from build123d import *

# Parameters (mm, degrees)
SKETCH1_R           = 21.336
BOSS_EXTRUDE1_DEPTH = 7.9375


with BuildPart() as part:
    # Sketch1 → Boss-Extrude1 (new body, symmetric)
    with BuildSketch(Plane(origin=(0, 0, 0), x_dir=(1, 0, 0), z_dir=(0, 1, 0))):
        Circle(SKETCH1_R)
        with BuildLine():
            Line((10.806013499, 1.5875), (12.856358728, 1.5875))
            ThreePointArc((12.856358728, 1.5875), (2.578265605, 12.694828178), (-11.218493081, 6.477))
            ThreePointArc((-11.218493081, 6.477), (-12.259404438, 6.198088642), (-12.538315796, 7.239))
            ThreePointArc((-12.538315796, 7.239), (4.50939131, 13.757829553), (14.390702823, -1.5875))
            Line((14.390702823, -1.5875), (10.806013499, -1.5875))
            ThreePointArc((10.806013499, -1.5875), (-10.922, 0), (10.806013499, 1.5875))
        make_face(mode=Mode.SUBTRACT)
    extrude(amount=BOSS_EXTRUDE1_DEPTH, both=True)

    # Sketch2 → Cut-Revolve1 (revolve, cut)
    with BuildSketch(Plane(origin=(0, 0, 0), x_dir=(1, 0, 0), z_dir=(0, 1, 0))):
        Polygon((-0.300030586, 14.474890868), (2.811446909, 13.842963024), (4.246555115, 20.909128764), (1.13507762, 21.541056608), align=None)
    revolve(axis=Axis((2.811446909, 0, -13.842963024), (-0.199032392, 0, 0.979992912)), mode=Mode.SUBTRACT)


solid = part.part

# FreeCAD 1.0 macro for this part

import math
import FreeCAD as App
import Part
import Sketcher
Q = App.Units.Quantity

doc = App.newDocument("Part")
body = doc.addObject("PartDesign::Body", "Body")

# Sketch on XZ plane
sketch1 = body.newObject("Sketcher::SketchObject", "Sketch")
sketch1.AttachmentSupport = (doc.getObject("XZ_Plane"), [""])
sketch1.MapMode = "FlatFace"
sketch1.addGeometry(Part.Circle(App.Vector(0, 0, 0), App.Vector(0, 0, 1), 21.336), False)
sketch1.addGeometry(Part.ArcOfCircle(Part.Circle(App.Vector(0, 0, 0), App.Vector(0, 0, 1), 10.922), math.radians(8.35748), math.radians(351.64252)), False)
sketch1.addGeometry(Part.LineSegment(App.Vector(10.806013, -1.5875, 0), App.Vector(12.856359, -1.5875, 0)), False)
sketch1.addGeometry(Part.ArcOfCircle(Part.Circle(App.Vector(0, 0, 0), App.Vector(0, 0, 1), 12.954), math.radians(-150), math.radians(-7.039237)), False)
sketch1.addGeometry(Part.ArcOfCircle(Part.Circle(App.Vector(-11.878404, -6.858, 0), App.Vector(0, 0, 1), 0.762), math.radians(30), math.radians(210)), False)
sketch1.addGeometry(Part.ArcOfCircle(Part.Circle(App.Vector(0, 0, 0), App.Vector(0, 0, 1), 14.478), math.radians(-150), math.radians(6.295089)), False)
sketch1.addGeometry(Part.LineSegment(App.Vector(14.390703, 1.5875, 0), App.Vector(10.806013, 1.5875, 0)), False)
sketch1.addConstraint(Sketcher.Constraint("Coincident", 1, 2, 2, 1))
sketch1.addConstraint(Sketcher.Constraint("Coincident", 2, 2, 3, 2))
sketch1.addConstraint(Sketcher.Constraint("Tangent", 3, 1, 4, 1))
sketch1.addConstraint(Sketcher.Constraint("Tangent", 4, 2, 5, 1))
sketch1.addConstraint(Sketcher.Constraint("Coincident", 5, 2, 6, 1))
sketch1.addConstraint(Sketcher.Constraint("Coincident", 6, 2, 1, 1))
sketch1.addConstraint(Sketcher.Constraint("Horizontal", 2))
sketch1.addConstraint(Sketcher.Constraint("Horizontal", 6))
sketch1.addConstraint(Sketcher.Constraint("Coincident", 0, 3, -1, 1))
sketch1.addConstraint(Sketcher.Constraint("Coincident", 1, 3, -1, 1))
sketch1.addConstraint(Sketcher.Constraint("Coincident", 3, 3, -1, 1))
sketch1.addConstraint(Sketcher.Constraint("Coincident", 5, 3, -1, 1))
sketch1.addConstraint(Sketcher.Constraint("Vertical", 1, 2, 6, 2))
sketch1.addConstraint(Sketcher.Constraint("Diameter", 0, Q("1.68 in")))
sketch1.addConstraint(Sketcher.Constraint("Radius", 1, Q("0.43 in")))
sketch1.addConstraint(Sketcher.Constraint("Radius", 3, Q("0.51 in")))
sketch1.addConstraint(Sketcher.Constraint("Radius", 4, Q("0.03 in")))
sketch1.addConstraint(Sketcher.Constraint("DistanceY", 4, 3, -1, 1, Q("0.27 in")))
sketch1.addConstraint(Sketcher.Constraint("DistanceY", 1, 2, -1, 1, Q("0.0625 in")))
pad1 = body.newObject("PartDesign::Pad", "Pad")
pad1.Profile = sketch1
pad1.Length = Q("0.625 in")
pad1.Midplane = True

# Sketch on XZ plane
sketch2 = body.newObject("Sketcher::SketchObject", "Sketch001")
sketch2.AttachmentSupport = (doc.getObject("XZ_Plane"), [""])
sketch2.MapMode = "FlatFace"
sketch2.addGeometry(Part.LineSegment(App.Vector(-0.300031, -14.474891, 0), App.Vector(2.811447, -13.842963, 0)), False)
sketch2.addGeometry(Part.LineSegment(App.Vector(2.811447, -13.842963, 0), App.Vector(4.246555, -20.909129, 0)), False)
sketch2.addGeometry(Part.LineSegment(App.Vector(4.246555, -20.909129, 0), App.Vector(1.135078, -21.541057, 0)), False)
sketch2.addGeometry(Part.LineSegment(App.Vector(1.135078, -21.541057, 0), App.Vector(-0.300031, -14.474891, 0)), False)
sketch2.addGeometry(Part.LineSegment(App.Vector(4.246555, -20.909129, 0), App.Vector(2.811447, -13.842963, 0)), True)  # axis
sketch2.addConstraint(Sketcher.Constraint("Coincident", 0, 2, 1, 1))
sketch2.addConstraint(Sketcher.Constraint("Coincident", 1, 2, 2, 1))
sketch2.addConstraint(Sketcher.Constraint("Coincident", 2, 2, 3, 1))
sketch2.addConstraint(Sketcher.Constraint("Coincident", 3, 2, 0, 1))
sketch2.addConstraint(Sketcher.Constraint("Coincident", 4, 1, 1, 2))
sketch2.addConstraint(Sketcher.Constraint("Coincident", 4, 2, 0, 2))
sketch2.addConstraint(Sketcher.Constraint("Perpendicular", 0, 1))
sketch2.addConstraint(Sketcher.Constraint("Perpendicular", 1, 2))
sketch2.addConstraint(Sketcher.Constraint("Perpendicular", 2, 3))
sketch2.addConstraint(Sketcher.Constraint("Distance", 0, Q("0.125 in")))
sketch2.addConstraint(Sketcher.Constraint("DistanceY", 1, 2, -1, 1, 20.909129))
sketch2.addConstraint(Sketcher.Constraint("DistanceX", 3, 2, -1, 1, 0.300031))
sketch2.addConstraint(Sketcher.Constraint("DistanceY", 3, 2, -1, 1, 14.474891))
sketch2.addConstraint(Sketcher.Constraint("DistanceX", 0, 2, 1, 2, 1.435108))
groove = body.newObject("PartDesign::Groove", "Groove")
groove.Profile = sketch2
groove.ReferenceAxis = (sketch2, ["Axis0"])
groove.Angle = 360

doc.recompute()
